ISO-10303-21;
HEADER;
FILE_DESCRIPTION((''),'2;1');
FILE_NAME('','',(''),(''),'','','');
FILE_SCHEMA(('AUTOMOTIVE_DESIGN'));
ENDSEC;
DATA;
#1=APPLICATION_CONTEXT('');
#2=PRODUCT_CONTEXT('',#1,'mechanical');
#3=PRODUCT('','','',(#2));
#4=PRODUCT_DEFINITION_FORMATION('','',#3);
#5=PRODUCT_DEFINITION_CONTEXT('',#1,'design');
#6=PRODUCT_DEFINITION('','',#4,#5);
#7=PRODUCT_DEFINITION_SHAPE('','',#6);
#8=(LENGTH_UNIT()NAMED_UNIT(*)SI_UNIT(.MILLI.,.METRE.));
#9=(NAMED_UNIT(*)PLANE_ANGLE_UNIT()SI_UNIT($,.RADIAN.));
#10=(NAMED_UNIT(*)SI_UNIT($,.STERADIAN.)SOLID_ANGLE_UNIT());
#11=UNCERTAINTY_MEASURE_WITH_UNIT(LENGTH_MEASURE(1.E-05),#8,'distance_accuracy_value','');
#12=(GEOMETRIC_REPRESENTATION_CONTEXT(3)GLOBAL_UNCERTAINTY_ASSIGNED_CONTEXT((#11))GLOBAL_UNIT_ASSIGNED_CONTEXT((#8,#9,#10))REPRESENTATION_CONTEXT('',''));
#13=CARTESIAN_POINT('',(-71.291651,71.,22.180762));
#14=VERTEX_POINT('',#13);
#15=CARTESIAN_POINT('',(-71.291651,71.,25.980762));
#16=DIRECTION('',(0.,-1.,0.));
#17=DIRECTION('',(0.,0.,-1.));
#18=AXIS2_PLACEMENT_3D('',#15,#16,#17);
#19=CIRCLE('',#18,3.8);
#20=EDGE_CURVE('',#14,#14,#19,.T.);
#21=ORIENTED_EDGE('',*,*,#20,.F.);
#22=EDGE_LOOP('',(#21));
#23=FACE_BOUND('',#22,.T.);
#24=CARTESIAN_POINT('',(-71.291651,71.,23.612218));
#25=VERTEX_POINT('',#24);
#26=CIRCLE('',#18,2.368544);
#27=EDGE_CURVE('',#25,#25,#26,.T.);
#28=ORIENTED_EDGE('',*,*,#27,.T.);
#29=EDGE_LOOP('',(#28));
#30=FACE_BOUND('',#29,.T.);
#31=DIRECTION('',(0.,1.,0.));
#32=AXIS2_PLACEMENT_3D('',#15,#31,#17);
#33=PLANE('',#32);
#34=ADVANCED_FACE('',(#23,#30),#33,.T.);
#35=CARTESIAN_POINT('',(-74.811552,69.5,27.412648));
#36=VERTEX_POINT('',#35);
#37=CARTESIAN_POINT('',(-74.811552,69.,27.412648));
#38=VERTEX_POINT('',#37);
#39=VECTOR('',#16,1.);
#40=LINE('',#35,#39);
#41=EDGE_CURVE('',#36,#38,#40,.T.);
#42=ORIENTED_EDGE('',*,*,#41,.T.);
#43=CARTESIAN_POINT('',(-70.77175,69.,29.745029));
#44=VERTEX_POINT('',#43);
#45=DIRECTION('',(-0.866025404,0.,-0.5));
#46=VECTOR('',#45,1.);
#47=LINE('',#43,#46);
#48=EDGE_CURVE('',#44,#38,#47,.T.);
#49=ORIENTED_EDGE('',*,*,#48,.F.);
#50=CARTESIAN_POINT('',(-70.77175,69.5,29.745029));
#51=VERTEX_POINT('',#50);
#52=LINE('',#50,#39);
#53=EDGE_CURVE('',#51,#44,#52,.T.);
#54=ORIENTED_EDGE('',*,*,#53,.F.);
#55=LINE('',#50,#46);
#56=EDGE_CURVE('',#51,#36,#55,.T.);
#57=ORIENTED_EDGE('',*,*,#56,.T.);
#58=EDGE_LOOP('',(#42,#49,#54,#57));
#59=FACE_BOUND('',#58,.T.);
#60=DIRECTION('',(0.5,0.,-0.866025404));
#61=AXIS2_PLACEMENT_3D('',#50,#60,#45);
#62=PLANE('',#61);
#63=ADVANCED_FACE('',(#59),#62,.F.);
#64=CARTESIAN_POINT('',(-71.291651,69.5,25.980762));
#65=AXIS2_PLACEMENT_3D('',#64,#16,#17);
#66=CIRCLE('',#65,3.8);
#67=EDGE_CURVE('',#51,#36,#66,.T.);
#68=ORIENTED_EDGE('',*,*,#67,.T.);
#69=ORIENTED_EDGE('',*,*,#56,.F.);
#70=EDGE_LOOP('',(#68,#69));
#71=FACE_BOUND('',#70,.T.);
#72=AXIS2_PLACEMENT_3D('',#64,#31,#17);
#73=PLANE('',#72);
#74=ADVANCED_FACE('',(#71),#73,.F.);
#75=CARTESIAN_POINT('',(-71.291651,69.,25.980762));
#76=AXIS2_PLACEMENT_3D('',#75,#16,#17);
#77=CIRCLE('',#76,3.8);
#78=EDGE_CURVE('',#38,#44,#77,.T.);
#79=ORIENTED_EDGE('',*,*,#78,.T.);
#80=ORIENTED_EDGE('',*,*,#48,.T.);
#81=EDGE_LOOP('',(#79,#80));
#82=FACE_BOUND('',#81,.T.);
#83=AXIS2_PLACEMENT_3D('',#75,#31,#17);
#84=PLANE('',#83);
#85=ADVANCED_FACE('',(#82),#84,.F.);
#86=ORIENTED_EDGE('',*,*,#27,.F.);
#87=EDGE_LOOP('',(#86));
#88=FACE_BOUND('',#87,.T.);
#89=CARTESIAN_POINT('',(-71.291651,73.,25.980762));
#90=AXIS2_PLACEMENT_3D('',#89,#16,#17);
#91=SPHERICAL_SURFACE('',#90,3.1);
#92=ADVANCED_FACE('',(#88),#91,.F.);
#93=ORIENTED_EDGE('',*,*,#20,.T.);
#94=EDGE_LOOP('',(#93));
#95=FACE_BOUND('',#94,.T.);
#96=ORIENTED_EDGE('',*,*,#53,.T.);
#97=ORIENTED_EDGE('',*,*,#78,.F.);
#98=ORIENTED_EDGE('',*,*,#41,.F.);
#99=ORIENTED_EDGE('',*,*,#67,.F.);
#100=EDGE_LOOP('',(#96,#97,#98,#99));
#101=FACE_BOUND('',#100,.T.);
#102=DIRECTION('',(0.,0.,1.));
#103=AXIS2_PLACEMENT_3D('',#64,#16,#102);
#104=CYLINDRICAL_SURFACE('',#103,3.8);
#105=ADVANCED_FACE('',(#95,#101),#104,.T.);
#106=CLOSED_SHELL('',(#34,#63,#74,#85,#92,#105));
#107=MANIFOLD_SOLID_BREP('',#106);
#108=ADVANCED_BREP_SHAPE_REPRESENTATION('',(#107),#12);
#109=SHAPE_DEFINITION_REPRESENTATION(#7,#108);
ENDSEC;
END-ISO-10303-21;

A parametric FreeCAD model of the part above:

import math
import FreeCAD as App
import Part
import Sketcher

V = App.Vector
Q = App.Units.Quantity

doc = App.newDocument("Part")
body = doc.addObject("PartDesign::Body", "Body")

# Sketch on XZ plane
sketch1 = body.newObject("Sketcher::SketchObject", "Sketch")
sketch1.AttachmentSupport = (doc.getObject("XZ_Plane"), [""])
sketch1.MapMode = "FlatFace"
sketch1.AttachmentOffset = App.Placement(V(0, 0, 69), App.Rotation())
sketch1.addGeometry([
    Part.LineSegment(V(-70.8, 29.7, 0), V(-74.8, 27.4, 0)),
    Part.ArcOfCircle(Part.Circle(V(-71.3, 26, 0), V(0, 0, 1), 3.8), math.radians(158), math.radians(442)),
], False)
sketch1.addConstraint([
    Sketcher.Constraint("Coincident", 0, 1, 1, 2),
    Sketcher.Constraint("Coincident", 1, 1, 0, 2),
    Sketcher.Constraint("Radius", 1, 3.8),
    Sketcher.Constraint("Angle", 0, Q("-150 deg")),
    Sketcher.Constraint("DistanceX", 1, 3, 0, 1, 0.519901),
    Sketcher.Constraint("DistanceX", 1, 3, -1, 1, 71.291651),
    Sketcher.Constraint("DistanceY", -1, 1, 0, 1, 29.745029),
])
pad1 = body.newObject("PartDesign::Pad", "Pad")
pad1.Profile = sketch1
pad1.Length = 0.5

# Sketch on XZ plane
sketch2 = body.newObject("Sketcher::SketchObject", "Sketch001")
sketch2.AttachmentSupport = (doc.getObject("XZ_Plane"), [""])
sketch2.MapMode = "FlatFace"
sketch2.AttachmentOffset = App.Placement(V(0, 0, 69.5), App.Rotation())
sketch2.addGeometry(Part.Circle(V(-71.3, 26, 0), V(0, 0, 1), 3.8), False)
sketch2.addConstraint([
    Sketcher.Constraint("Diameter", 0, 7.6),
    Sketcher.Constraint("DistanceX", 0, 3, -1, 1, 71.291651),
    Sketcher.Constraint("DistanceY", -1, 1, 0, 3, 25.980762),
])
pad2 = body.newObject("PartDesign::Pad", "Pad001")
pad2.Profile = sketch2
pad2.Length = 1.5

# Sketch on XZ plane
sketch3 = body.newObject("Sketcher::SketchObject", "Sketch002")
sketch3.AttachmentSupport = (doc.getObject("XZ_Plane"), [""])
sketch3.MapMode = "FlatFace"
sketch3.AttachmentOffset = App.Placement(V(0, 0, 73), App.Rotation())
sketch3.addGeometry([
    Part.LineSegment(V(-71.3, 29.1, 0), V(-71.3, 22.9, 0)),
    Part.ArcOfCircle(Part.Circle(V(-71.3, 26, 0), V(0, 0, 1), 3.1), math.radians(-90), math.radians(90)),
], False)
sketch3.addGeometry(Part.LineSegment(V(-71.3, 22.9, 0), V(-71.3, 29.1, 0)), True)  # axis
sketch3.addConstraint([
    Sketcher.Constraint("Coincident", 0, 1, 1, 2),
    Sketcher.Constraint("Coincident", 1, 1, 0, 2),
    Sketcher.Constraint("Vertical", 0),
    Sketcher.Constraint("Vertical", 2),
    Sketcher.Constraint("Coincident", 2, 1, 1, 1),
    Sketcher.Constraint("Vertical", 1, 3, 0, 1),
    Sketcher.Constraint("Equal", 0, 2),
    Sketcher.Constraint("Radius", 1, 3.1),
    Sketcher.Constraint("DistanceX", 1, 3, -1, 1, 71.291651),
    Sketcher.Constraint("DistanceY", -1, 1, 1, 3, 25.980762),
])
groove = body.newObject("PartDesign::Groove", "Groove")
groove.Profile = sketch3
groove.ReferenceAxis = (sketch3, ["Axis0"])
groove.Angle = 360
body2 = doc.addObject("PartDesign::Body", "Body001")
doc.recompute()

mirroring = doc.addObject("Part::Mirroring", "Mirroring")
mirroring.Source = body
mirroring.Base = V(0, 0, 0)
mirroring.Normal = V(0, -1, 0)
body2.BaseFeature = mirroring
doc.recompute()
body.Visibility = False
mirroring.Visibility = False

doc.recompute()
